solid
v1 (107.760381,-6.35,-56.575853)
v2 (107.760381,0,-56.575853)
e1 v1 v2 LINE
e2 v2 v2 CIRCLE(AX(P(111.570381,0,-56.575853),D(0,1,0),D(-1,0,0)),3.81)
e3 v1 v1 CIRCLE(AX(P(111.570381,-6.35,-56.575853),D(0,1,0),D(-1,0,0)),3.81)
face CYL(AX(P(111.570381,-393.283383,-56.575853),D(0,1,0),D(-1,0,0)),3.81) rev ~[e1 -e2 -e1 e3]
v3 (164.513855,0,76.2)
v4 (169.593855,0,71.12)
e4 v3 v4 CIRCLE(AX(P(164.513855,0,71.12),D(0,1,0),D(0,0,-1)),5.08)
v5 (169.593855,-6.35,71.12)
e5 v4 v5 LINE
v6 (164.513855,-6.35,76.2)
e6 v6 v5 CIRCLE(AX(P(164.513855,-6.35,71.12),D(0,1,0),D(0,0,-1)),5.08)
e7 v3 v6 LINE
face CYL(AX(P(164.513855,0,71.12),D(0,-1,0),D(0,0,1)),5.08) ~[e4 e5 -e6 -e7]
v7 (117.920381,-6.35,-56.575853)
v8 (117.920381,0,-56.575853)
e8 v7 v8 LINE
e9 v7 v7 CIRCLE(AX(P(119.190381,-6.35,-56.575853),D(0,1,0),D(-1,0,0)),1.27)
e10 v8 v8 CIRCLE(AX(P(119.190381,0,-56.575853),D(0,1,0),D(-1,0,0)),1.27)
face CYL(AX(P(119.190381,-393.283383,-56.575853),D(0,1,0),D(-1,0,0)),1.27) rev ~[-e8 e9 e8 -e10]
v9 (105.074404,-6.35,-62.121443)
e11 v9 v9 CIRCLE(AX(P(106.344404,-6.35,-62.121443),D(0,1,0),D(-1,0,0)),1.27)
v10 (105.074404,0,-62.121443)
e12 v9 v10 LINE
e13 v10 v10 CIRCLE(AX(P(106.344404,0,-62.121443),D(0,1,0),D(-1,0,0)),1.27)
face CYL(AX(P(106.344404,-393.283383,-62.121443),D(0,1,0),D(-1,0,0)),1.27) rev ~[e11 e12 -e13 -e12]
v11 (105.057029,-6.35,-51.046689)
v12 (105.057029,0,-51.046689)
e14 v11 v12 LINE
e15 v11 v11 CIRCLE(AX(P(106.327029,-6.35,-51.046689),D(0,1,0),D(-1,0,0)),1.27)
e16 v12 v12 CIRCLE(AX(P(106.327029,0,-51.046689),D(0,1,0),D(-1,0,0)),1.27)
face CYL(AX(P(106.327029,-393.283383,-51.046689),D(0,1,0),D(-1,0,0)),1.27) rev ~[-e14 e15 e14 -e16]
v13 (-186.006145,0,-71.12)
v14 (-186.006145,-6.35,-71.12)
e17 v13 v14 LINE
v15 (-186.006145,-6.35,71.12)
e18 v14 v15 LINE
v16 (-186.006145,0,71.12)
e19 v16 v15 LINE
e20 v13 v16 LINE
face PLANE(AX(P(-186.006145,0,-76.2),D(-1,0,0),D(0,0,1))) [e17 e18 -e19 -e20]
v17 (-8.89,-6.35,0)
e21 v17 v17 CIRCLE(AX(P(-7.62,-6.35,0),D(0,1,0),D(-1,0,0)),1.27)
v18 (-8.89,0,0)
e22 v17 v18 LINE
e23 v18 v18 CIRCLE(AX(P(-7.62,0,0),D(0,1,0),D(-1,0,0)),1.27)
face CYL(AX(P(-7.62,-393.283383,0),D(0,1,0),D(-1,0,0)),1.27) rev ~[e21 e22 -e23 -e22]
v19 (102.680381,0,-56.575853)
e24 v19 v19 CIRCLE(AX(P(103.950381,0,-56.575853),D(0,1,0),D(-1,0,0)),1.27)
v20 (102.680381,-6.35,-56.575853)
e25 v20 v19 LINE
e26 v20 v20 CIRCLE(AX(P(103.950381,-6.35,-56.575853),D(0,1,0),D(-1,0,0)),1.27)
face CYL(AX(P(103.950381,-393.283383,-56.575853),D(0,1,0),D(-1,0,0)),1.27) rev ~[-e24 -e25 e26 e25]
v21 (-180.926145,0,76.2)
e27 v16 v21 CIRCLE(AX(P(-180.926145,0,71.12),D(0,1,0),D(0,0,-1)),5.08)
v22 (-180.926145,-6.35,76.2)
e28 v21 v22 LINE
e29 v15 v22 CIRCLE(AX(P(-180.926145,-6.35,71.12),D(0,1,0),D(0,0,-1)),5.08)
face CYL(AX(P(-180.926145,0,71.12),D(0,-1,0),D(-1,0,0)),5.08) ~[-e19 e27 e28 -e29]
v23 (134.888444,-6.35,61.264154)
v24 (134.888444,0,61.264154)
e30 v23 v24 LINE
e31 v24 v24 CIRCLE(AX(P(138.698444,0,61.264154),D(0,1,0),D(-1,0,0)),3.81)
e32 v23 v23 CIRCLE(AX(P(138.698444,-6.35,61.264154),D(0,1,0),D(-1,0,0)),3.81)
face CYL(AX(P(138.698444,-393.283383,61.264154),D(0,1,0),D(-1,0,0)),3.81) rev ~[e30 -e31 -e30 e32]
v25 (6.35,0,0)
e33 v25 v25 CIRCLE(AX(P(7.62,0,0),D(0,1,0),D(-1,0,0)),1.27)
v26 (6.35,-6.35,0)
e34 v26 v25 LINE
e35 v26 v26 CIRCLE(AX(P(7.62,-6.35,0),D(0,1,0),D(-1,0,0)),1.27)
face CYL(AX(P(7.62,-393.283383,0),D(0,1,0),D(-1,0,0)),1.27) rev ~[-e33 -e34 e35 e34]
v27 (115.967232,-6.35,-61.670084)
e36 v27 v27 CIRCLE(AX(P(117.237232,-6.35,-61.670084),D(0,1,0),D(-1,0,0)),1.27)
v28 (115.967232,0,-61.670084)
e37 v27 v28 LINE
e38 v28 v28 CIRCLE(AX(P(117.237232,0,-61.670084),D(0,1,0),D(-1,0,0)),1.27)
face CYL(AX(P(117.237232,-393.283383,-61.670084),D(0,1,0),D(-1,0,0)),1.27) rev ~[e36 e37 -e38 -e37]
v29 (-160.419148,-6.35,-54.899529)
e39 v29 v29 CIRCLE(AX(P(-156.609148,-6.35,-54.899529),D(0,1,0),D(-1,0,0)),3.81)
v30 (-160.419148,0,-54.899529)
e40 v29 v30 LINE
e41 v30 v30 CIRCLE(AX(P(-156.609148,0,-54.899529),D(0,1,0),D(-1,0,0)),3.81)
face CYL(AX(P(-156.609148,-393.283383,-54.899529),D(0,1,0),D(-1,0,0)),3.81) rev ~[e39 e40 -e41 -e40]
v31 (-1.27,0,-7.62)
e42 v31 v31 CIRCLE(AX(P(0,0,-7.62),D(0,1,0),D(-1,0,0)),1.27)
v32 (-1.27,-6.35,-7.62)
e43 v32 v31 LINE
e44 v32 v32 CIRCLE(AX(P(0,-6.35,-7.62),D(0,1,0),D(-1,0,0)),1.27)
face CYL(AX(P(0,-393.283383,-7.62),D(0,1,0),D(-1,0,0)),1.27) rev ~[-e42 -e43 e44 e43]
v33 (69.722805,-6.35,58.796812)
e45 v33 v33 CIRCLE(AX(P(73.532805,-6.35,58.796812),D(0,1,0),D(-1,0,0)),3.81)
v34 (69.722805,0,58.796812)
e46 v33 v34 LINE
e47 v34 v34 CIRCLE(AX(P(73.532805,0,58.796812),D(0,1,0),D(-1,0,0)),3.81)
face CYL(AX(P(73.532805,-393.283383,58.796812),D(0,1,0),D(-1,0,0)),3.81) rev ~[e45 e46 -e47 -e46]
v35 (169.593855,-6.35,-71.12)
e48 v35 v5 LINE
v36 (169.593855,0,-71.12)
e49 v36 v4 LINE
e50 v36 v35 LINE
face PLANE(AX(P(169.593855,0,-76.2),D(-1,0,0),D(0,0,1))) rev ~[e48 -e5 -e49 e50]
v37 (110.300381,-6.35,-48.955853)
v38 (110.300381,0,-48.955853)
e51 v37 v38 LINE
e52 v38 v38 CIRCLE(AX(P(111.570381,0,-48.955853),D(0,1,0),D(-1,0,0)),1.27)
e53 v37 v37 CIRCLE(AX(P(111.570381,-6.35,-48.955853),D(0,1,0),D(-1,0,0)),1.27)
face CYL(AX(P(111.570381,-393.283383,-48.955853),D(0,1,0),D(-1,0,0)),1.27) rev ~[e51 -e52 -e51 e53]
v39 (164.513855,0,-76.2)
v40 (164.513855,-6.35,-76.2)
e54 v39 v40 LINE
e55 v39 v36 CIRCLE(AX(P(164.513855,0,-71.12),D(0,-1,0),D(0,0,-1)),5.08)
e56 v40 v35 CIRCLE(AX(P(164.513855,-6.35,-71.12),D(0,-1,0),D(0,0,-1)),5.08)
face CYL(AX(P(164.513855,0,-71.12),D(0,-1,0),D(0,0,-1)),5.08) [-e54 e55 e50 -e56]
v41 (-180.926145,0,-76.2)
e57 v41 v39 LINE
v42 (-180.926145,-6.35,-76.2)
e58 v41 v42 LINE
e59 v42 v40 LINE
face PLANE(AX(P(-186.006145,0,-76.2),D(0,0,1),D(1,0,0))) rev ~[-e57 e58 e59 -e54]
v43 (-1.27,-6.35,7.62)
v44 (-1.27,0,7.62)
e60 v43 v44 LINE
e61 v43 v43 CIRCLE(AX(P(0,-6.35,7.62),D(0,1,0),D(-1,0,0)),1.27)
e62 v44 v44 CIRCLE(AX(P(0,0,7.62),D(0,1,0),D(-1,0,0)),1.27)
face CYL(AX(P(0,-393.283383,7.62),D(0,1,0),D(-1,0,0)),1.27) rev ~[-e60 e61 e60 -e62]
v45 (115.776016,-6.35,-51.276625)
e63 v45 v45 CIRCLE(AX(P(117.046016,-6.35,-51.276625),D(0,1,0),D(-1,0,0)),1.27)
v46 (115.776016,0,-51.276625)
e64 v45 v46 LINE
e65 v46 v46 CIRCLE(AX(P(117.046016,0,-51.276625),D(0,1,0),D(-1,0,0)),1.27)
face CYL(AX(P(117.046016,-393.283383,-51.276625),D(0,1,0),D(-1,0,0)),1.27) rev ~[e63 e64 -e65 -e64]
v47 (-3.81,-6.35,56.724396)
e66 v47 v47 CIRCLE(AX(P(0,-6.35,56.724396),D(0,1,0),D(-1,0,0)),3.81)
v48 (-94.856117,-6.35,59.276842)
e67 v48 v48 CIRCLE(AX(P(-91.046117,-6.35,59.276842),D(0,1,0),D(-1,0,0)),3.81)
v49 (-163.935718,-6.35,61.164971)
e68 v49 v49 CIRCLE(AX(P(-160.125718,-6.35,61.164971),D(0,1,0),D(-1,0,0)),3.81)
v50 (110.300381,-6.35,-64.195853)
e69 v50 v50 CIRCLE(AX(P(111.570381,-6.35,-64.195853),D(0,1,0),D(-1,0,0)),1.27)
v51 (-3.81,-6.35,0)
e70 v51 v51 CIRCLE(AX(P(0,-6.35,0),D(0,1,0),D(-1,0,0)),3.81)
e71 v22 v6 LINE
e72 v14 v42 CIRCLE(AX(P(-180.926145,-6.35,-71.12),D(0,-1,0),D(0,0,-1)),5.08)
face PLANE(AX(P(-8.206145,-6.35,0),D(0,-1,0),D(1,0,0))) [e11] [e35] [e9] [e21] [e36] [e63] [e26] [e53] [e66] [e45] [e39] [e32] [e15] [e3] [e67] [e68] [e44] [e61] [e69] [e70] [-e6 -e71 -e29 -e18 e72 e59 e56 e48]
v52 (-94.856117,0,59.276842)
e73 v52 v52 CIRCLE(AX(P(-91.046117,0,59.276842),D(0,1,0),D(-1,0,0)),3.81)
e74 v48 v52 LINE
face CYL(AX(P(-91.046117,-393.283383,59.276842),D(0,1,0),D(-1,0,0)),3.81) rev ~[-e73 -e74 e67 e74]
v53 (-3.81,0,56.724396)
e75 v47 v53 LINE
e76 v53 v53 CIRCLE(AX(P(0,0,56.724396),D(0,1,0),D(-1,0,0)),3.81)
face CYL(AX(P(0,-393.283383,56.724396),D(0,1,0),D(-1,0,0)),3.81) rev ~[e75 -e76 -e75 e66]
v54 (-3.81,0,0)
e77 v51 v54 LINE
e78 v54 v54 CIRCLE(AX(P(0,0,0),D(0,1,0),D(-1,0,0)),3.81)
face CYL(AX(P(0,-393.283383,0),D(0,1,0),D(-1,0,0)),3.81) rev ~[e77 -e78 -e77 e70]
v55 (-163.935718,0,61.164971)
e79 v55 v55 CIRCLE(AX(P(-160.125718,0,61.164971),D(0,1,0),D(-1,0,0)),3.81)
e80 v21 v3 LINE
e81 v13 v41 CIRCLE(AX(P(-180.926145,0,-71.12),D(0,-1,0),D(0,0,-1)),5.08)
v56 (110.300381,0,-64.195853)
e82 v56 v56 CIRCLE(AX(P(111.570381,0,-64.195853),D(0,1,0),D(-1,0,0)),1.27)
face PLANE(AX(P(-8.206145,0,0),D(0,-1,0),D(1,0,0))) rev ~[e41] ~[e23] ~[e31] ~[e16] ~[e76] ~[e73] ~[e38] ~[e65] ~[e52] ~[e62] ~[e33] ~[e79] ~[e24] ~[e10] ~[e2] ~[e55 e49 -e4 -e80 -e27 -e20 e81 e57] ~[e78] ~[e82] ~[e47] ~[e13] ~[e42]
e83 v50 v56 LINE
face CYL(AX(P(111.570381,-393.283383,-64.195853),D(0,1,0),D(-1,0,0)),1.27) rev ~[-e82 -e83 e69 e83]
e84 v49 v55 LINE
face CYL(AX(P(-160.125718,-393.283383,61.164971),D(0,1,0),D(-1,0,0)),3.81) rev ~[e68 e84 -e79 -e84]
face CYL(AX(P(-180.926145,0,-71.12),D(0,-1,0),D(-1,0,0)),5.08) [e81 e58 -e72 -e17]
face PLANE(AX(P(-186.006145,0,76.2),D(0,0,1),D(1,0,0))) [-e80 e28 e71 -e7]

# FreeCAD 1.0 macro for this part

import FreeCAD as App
import Part
import Sketcher

V = App.Vector
Q = App.Units.Quantity


def edges_at(feature, points):
    """Names of the edges that pass closest to the given points."""
    edges = feature.Shape.Edges
    near = lambda p: min(range(len(edges)), key=lambda i: edges[i].distToShape(Part.Vertex(*p))[0])
    return sorted({f"Edge{near(p) + 1}" for p in points})

doc = App.newDocument("Part")
body = doc.addObject("PartDesign::Body", "Body")

# Sketch on XZ plane
sketch1 = doc.addObject("Sketcher::SketchObject", "Sketch")
body.addObject(sketch1)
sketch1.AttachmentSupport = (doc.XZ_Plane, [""])
sketch1.MapMode = "FlatFace"
sketch1.addGeometry([
    Part.LineSegment(V(-186, 76, 0), V(-186, -76, 0)),
    Part.LineSegment(V(-186, -76, 0), V(170, -76, 0)),
    Part.LineSegment(V(170, -76, 0), V(170, 76, 0)),
    Part.LineSegment(V(170, 76, 0), V(-186, 76, 0)),
], False)
sketch1.addConstraint([
    Sketcher.Constraint("Coincident", 0, 2, 1, 1),
    Sketcher.Constraint("Coincident", 1, 2, 2, 1),
    Sketcher.Constraint("Coincident", 2, 2, 3, 1),
    Sketcher.Constraint("Coincident", 3, 2, 0, 1),
    Sketcher.Constraint("Vertical", 0),
    Sketcher.Constraint("Horizontal", 1),
    Sketcher.Constraint("Vertical", 2),
    Sketcher.Constraint("Horizontal", 3),
    Sketcher.Constraint("DistanceX", 1, 1, 1, 2, Q("14 in")),
    Sketcher.Constraint("DistanceY", 0, 2, 0, 1, Q("6 in")),
    Sketcher.Constraint("DistanceY", 0, 2, -1, 1, Q("3 in")),
    Sketcher.Constraint("DistanceX", 0, 2, -1, 1, 186.006145),
])
pad1 = doc.addObject("PartDesign::Pad", "Pad")
body.addObject(pad1)
pad1.Profile = sketch1
pad1.Length = Q("0.25 in")

# Sketch on XZ plane
sketch2 = doc.addObject("Sketcher::SketchObject", "Sketch001")
body.addObject(sketch2)
sketch2.AttachmentSupport = (doc.XZ_Plane, [""])
sketch2.MapMode = "FlatFace"
sketch2.AttachmentOffset = App.Placement(V(0, 0, 0.25 * 25.4), App.Rotation())
sketch2.addGeometry([
    Part.Circle(V(-7.6, 0, 0), V(0, 0, 1), 1.3),
    Part.Circle(V(0, 7.6, 0), V(0, 0, 1), 1.3),
    Part.Circle(V(7.6, 0, 0), V(0, 0, 1), 1.3),
    Part.Circle(V(0, -7.6, 0), V(0, 0, 1), 1.3),
], False)
sketch2.addConstraint([
    Sketcher.Constraint("Equal", 0, 1),
    Sketcher.Constraint("Equal", 1, 2),
    Sketcher.Constraint("Equal", 2, 3),
    Sketcher.Constraint("Symmetric", 0, 3, 2, 3, -1, 1),
    Sketcher.Constraint("Symmetric", 1, 3, 3, 3, -1, 1),
    Sketcher.Constraint("PointOnObject", 0, 3, -1),
    Sketcher.Constraint("PointOnObject", 1, 3, -2),
    Sketcher.Constraint("Diameter", 0, Q("0.1 in")),
    Sketcher.Constraint("DistanceX", 0, 3, -1, 1, Q("0.3 in")),
    Sketcher.Constraint("DistanceY", -1, 1, 1, 3, Q("0.3 in")),
])
doc.recompute()
hole = doc.addObject("PartDesign::Hole", "Hole")
body.addObject(hole)
hole.Profile = sketch2
hole.ThreadType = "None"
hole.Diameter = Q("0.1 in")
hole.DepthType = "ThroughAll"

# Sketch on XZ plane
sketch3 = doc.addObject("Sketcher::SketchObject", "Sketch002")
body.addObject(sketch3)
sketch3.AttachmentSupport = (doc.XZ_Plane, [""])
sketch3.MapMode = "FlatFace"
sketch3.AttachmentOffset = App.Placement(V(0, 0, 0.25 * 25.4), App.Rotation())
sketch3.addGeometry([
    Part.Circle(V(0, 0, 0), V(0, 0, 1), 3.8),
    Part.Circle(V(111.6, -56.6, 0), V(0, 0, 1), 3.8),
    Part.Circle(V(138.7, 61.3, 0), V(0, 0, 1), 3.8),
], False)
sketch3.addConstraint([
    Sketcher.Constraint("Coincident", 0, 3, -1, 1),
    Sketcher.Constraint("Equal", 0, 1),
    Sketcher.Constraint("Equal", 1, 2),
    Sketcher.Constraint("Diameter", 0, Q("0.3 in")),
    Sketcher.Constraint("DistanceX", -1, 1, 1, 3, 111.570381),
    Sketcher.Constraint("DistanceY", 1, 3, -1, 1, 56.575853),
    Sketcher.Constraint("DistanceX", -1, 1, 2, 3, 138.698444),
    Sketcher.Constraint("DistanceY", -1, 1, 2, 3, 61.264154),
])
doc.recompute()
hole2 = doc.addObject("PartDesign::Hole", "Hole001")
body.addObject(hole2)
hole2.Profile = sketch3
hole2.ThreadType = "None"
hole2.Diameter = Q("0.3 in")
hole2.DepthType = "ThroughAll"
doc.recompute()

fillet = doc.addObject("PartDesign::Fillet", "Fillet")
body.addObject(fillet)
fillet.Base = (hole2, edges_at(hole2, [
    (169.594, -3.175, 76.2),
    (169.594, -3.175, -76.2),
    (-186.006, -3.175, 76.2),
    (-186.006, -3.175, -76.2),
]))
fillet.Radius = Q("0.2 in")

# Sketch on XZ plane
sketch4 = doc.addObject("Sketcher::SketchObject", "Sketch003")
body.addObject(sketch4)
sketch4.AttachmentSupport = (doc.XZ_Plane, [""])
sketch4.MapMode = "FlatFace"
sketch4.AttachmentOffset = App.Placement(V(0, 0, 0.25 * 25.4), App.Rotation())
sketch4.addGeometry([
    Part.Circle(V(111.6, -49, 0), V(0, 0, 1), 1.3),  # 0
    Part.Circle(V(117, -51.3, 0), V(0, 0, 1), 1.3),  # 1
    Part.Circle(V(119.2, -56.6, 0), V(0, 0, 1), 1.3),  # 2
    Part.Circle(V(117.2, -61.7, 0), V(0, 0, 1), 1.3),  # 3
    Part.Circle(V(111.6, -64.2, 0), V(0, 0, 1), 1.3),  # 4
    Part.Circle(V(106.3, -62.1, 0), V(0, 0, 1), 1.3),  # 5
    Part.Circle(V(104, -56.6, 0), V(0, 0, 1), 1.3),  # 6
    Part.Circle(V(106.3, -51, 0), V(0, 0, 1), 1.3),  # 7
], False)
sketch4.addConstraint([
    Sketcher.Constraint("Equal", 0, 1),
    Sketcher.Constraint("Equal", 1, 2),
    Sketcher.Constraint("Equal", 2, 3),
    Sketcher.Constraint("Equal", 3, 4),
    Sketcher.Constraint("Equal", 4, 5),
    Sketcher.Constraint("Equal", 5, 6),
    Sketcher.Constraint("Equal", 6, 7),
    Sketcher.Constraint("Horizontal", 2, 3, 6, 3),
    Sketcher.Constraint("Vertical", 0, 3, 4, 3),
    Sketcher.Constraint("Diameter", 0, Q("0.1 in")),
    Sketcher.Constraint("DistanceX", 0, 3, 2, 3, Q("0.3 in")),
    Sketcher.Constraint("DistanceY", 2, 3, 0, 3, Q("0.3 in")),
    Sketcher.Constraint("DistanceY", 4, 3, 2, 3, Q("0.3 in")),
    Sketcher.Constraint("DistanceX", 6, 3, 4, 3, Q("0.3 in")),
    Sketcher.Constraint("DistanceX", -1, 1, 0, 3, 111.570381),
    Sketcher.Constraint("DistanceX", -1, 1, 7, 3, 106.327029),
    Sketcher.Constraint("DistanceY", 7, 3, -1, 1, 51.046689),
    Sketcher.Constraint("DistanceX", 3, 3, 2, 3, 1.953149),
    Sketcher.Constraint("DistanceY", 3, 3, 2, 3, 5.094231),
    Sketcher.Constraint("DistanceY", 3, 3, 1, 3, 10.393459),
    Sketcher.Constraint("DistanceY", 4, 3, 5, 3, 2.07441),
    Sketcher.Constraint("DistanceX", 5, 3, 3, 3, 10.892828),
    Sketcher.Constraint("DistanceX", 5, 3, 1, 3, 10.701612),
    Sketcher.Constraint("DistanceY", 0, 3, -1, 1, 48.955853),
])
doc.recompute()
hole3 = doc.addObject("PartDesign::Hole", "Hole002")
body.addObject(hole3)
hole3.Profile = sketch4
hole3.ThreadType = "None"
hole3.Diameter = Q("0.1 in")
hole3.DepthType = "ThroughAll"

# Sketch on XZ plane
sketch5 = doc.addObject("Sketcher::SketchObject", "Sketch004")
body.addObject(sketch5)
sketch5.AttachmentSupport = (doc.XZ_Plane, [""])
sketch5.MapMode = "FlatFace"
sketch5.AttachmentOffset = App.Placement(V(0, 0, 0.25 * 25.4), App.Rotation())
sketch5.addGeometry(Part.Circle(V(-156.6, -54.9, 0), V(0, 0, 1), 3.8), False)
sketch5.addConstraint([
    Sketcher.Constraint("Diameter", 0, Q("0.3 in")),
    Sketcher.Constraint("DistanceX", 0, 3, -1, 1, 156.609148),
    Sketcher.Constraint("DistanceY", 0, 3, -1, 1, 54.899529),
])
doc.recompute()
hole4 = doc.addObject("PartDesign::Hole", "Hole003")
body.addObject(hole4)
hole4.Profile = sketch5
hole4.ThreadType = "None"
hole4.Diameter = Q("0.3 in")
hole4.DepthType = "ThroughAll"

# Sketch on XZ plane
sketch6 = doc.addObject("Sketcher::SketchObject", "Sketch005")
body.addObject(sketch6)
sketch6.AttachmentSupport = (doc.XZ_Plane, [""])
sketch6.MapMode = "FlatFace"
sketch6.AttachmentOffset = App.Placement(V(0, 0, 0.25 * 25.4), App.Rotation())
sketch6.addGeometry([
    Part.Circle(V(73.5, 58.8, 0), V(0, 0, 1), 3.8),
    Part.Circle(V(-160.1, 61.2, 0), V(0, 0, 1), 3.8),
], False)
sketch6.addConstraint([
    Sketcher.Constraint("Equal", 0, 1),
    Sketcher.Constraint("Diameter", 0, Q("0.3 in")),
    Sketcher.Constraint("DistanceX", 1, 3, -1, 1, 160.125718),
    Sketcher.Constraint("DistanceY", -1, 1, 1, 3, 61.164971),
    Sketcher.Constraint("DistanceY", 0, 3, 1, 3, 2.368159),
    Sketcher.Constraint("DistanceX", -1, 1, 0, 3, 73.532805),
])
doc.recompute()
hole5 = doc.addObject("PartDesign::Hole", "Hole004")
body.addObject(hole5)
hole5.Profile = sketch6
hole5.ThreadType = "None"
hole5.Diameter = Q("0.3 in")
hole5.DepthType = "ThroughAll"

# Sketch on XZ plane
sketch7 = doc.addObject("Sketcher::SketchObject", "Sketch006")
body.addObject(sketch7)
sketch7.AttachmentSupport = (doc.XZ_Plane, [""])
sketch7.MapMode = "FlatFace"
sketch7.AttachmentOffset = App.Placement(V(0, 0, 0.25 * 25.4), App.Rotation())
sketch7.addGeometry(Part.Circle(V(-91, 59.3, 0), V(0, 0, 1), 3.8), False)
sketch7.addConstraint([
    Sketcher.Constraint("Diameter", 0, Q("0.3 in")),
    Sketcher.Constraint("DistanceX", 0, 3, -1, 1, 91.046117),
    Sketcher.Constraint("DistanceY", -1, 1, 0, 3, 59.276842),
])
doc.recompute()
hole6 = doc.addObject("PartDesign::Hole", "Hole005")
body.addObject(hole6)
hole6.Profile = sketch7
hole6.ThreadType = "None"
hole6.Diameter = Q("0.3 in")
hole6.DepthType = "ThroughAll"

# Sketch on XZ plane
sketch8 = doc.addObject("Sketcher::SketchObject", "Sketch007")
body.addObject(sketch8)
sketch8.AttachmentSupport = (doc.XZ_Plane, [""])
sketch8.MapMode = "FlatFace"
sketch8.AttachmentOffset = App.Placement(V(0, 0, 0.25 * 25.4), App.Rotation())
sketch8.addGeometry(Part.Circle(V(0, 56.7, 0), V(0, 0, 1), 3.8), False)
sketch8.addConstraint([
    Sketcher.Constraint("PointOnObject", 0, 3, -2),
    Sketcher.Constraint("Diameter", 0, Q("0.3 in")),
    Sketcher.Constraint("DistanceY", -1, 1, 0, 3, 56.724396),
])
doc.recompute()
hole7 = doc.addObject("PartDesign::Hole", "Hole006")
body.addObject(hole7)
hole7.Profile = sketch8
hole7.ThreadType = "None"
hole7.Diameter = Q("0.3 in")
hole7.DepthType = "ThroughAll"

doc.recompute()
